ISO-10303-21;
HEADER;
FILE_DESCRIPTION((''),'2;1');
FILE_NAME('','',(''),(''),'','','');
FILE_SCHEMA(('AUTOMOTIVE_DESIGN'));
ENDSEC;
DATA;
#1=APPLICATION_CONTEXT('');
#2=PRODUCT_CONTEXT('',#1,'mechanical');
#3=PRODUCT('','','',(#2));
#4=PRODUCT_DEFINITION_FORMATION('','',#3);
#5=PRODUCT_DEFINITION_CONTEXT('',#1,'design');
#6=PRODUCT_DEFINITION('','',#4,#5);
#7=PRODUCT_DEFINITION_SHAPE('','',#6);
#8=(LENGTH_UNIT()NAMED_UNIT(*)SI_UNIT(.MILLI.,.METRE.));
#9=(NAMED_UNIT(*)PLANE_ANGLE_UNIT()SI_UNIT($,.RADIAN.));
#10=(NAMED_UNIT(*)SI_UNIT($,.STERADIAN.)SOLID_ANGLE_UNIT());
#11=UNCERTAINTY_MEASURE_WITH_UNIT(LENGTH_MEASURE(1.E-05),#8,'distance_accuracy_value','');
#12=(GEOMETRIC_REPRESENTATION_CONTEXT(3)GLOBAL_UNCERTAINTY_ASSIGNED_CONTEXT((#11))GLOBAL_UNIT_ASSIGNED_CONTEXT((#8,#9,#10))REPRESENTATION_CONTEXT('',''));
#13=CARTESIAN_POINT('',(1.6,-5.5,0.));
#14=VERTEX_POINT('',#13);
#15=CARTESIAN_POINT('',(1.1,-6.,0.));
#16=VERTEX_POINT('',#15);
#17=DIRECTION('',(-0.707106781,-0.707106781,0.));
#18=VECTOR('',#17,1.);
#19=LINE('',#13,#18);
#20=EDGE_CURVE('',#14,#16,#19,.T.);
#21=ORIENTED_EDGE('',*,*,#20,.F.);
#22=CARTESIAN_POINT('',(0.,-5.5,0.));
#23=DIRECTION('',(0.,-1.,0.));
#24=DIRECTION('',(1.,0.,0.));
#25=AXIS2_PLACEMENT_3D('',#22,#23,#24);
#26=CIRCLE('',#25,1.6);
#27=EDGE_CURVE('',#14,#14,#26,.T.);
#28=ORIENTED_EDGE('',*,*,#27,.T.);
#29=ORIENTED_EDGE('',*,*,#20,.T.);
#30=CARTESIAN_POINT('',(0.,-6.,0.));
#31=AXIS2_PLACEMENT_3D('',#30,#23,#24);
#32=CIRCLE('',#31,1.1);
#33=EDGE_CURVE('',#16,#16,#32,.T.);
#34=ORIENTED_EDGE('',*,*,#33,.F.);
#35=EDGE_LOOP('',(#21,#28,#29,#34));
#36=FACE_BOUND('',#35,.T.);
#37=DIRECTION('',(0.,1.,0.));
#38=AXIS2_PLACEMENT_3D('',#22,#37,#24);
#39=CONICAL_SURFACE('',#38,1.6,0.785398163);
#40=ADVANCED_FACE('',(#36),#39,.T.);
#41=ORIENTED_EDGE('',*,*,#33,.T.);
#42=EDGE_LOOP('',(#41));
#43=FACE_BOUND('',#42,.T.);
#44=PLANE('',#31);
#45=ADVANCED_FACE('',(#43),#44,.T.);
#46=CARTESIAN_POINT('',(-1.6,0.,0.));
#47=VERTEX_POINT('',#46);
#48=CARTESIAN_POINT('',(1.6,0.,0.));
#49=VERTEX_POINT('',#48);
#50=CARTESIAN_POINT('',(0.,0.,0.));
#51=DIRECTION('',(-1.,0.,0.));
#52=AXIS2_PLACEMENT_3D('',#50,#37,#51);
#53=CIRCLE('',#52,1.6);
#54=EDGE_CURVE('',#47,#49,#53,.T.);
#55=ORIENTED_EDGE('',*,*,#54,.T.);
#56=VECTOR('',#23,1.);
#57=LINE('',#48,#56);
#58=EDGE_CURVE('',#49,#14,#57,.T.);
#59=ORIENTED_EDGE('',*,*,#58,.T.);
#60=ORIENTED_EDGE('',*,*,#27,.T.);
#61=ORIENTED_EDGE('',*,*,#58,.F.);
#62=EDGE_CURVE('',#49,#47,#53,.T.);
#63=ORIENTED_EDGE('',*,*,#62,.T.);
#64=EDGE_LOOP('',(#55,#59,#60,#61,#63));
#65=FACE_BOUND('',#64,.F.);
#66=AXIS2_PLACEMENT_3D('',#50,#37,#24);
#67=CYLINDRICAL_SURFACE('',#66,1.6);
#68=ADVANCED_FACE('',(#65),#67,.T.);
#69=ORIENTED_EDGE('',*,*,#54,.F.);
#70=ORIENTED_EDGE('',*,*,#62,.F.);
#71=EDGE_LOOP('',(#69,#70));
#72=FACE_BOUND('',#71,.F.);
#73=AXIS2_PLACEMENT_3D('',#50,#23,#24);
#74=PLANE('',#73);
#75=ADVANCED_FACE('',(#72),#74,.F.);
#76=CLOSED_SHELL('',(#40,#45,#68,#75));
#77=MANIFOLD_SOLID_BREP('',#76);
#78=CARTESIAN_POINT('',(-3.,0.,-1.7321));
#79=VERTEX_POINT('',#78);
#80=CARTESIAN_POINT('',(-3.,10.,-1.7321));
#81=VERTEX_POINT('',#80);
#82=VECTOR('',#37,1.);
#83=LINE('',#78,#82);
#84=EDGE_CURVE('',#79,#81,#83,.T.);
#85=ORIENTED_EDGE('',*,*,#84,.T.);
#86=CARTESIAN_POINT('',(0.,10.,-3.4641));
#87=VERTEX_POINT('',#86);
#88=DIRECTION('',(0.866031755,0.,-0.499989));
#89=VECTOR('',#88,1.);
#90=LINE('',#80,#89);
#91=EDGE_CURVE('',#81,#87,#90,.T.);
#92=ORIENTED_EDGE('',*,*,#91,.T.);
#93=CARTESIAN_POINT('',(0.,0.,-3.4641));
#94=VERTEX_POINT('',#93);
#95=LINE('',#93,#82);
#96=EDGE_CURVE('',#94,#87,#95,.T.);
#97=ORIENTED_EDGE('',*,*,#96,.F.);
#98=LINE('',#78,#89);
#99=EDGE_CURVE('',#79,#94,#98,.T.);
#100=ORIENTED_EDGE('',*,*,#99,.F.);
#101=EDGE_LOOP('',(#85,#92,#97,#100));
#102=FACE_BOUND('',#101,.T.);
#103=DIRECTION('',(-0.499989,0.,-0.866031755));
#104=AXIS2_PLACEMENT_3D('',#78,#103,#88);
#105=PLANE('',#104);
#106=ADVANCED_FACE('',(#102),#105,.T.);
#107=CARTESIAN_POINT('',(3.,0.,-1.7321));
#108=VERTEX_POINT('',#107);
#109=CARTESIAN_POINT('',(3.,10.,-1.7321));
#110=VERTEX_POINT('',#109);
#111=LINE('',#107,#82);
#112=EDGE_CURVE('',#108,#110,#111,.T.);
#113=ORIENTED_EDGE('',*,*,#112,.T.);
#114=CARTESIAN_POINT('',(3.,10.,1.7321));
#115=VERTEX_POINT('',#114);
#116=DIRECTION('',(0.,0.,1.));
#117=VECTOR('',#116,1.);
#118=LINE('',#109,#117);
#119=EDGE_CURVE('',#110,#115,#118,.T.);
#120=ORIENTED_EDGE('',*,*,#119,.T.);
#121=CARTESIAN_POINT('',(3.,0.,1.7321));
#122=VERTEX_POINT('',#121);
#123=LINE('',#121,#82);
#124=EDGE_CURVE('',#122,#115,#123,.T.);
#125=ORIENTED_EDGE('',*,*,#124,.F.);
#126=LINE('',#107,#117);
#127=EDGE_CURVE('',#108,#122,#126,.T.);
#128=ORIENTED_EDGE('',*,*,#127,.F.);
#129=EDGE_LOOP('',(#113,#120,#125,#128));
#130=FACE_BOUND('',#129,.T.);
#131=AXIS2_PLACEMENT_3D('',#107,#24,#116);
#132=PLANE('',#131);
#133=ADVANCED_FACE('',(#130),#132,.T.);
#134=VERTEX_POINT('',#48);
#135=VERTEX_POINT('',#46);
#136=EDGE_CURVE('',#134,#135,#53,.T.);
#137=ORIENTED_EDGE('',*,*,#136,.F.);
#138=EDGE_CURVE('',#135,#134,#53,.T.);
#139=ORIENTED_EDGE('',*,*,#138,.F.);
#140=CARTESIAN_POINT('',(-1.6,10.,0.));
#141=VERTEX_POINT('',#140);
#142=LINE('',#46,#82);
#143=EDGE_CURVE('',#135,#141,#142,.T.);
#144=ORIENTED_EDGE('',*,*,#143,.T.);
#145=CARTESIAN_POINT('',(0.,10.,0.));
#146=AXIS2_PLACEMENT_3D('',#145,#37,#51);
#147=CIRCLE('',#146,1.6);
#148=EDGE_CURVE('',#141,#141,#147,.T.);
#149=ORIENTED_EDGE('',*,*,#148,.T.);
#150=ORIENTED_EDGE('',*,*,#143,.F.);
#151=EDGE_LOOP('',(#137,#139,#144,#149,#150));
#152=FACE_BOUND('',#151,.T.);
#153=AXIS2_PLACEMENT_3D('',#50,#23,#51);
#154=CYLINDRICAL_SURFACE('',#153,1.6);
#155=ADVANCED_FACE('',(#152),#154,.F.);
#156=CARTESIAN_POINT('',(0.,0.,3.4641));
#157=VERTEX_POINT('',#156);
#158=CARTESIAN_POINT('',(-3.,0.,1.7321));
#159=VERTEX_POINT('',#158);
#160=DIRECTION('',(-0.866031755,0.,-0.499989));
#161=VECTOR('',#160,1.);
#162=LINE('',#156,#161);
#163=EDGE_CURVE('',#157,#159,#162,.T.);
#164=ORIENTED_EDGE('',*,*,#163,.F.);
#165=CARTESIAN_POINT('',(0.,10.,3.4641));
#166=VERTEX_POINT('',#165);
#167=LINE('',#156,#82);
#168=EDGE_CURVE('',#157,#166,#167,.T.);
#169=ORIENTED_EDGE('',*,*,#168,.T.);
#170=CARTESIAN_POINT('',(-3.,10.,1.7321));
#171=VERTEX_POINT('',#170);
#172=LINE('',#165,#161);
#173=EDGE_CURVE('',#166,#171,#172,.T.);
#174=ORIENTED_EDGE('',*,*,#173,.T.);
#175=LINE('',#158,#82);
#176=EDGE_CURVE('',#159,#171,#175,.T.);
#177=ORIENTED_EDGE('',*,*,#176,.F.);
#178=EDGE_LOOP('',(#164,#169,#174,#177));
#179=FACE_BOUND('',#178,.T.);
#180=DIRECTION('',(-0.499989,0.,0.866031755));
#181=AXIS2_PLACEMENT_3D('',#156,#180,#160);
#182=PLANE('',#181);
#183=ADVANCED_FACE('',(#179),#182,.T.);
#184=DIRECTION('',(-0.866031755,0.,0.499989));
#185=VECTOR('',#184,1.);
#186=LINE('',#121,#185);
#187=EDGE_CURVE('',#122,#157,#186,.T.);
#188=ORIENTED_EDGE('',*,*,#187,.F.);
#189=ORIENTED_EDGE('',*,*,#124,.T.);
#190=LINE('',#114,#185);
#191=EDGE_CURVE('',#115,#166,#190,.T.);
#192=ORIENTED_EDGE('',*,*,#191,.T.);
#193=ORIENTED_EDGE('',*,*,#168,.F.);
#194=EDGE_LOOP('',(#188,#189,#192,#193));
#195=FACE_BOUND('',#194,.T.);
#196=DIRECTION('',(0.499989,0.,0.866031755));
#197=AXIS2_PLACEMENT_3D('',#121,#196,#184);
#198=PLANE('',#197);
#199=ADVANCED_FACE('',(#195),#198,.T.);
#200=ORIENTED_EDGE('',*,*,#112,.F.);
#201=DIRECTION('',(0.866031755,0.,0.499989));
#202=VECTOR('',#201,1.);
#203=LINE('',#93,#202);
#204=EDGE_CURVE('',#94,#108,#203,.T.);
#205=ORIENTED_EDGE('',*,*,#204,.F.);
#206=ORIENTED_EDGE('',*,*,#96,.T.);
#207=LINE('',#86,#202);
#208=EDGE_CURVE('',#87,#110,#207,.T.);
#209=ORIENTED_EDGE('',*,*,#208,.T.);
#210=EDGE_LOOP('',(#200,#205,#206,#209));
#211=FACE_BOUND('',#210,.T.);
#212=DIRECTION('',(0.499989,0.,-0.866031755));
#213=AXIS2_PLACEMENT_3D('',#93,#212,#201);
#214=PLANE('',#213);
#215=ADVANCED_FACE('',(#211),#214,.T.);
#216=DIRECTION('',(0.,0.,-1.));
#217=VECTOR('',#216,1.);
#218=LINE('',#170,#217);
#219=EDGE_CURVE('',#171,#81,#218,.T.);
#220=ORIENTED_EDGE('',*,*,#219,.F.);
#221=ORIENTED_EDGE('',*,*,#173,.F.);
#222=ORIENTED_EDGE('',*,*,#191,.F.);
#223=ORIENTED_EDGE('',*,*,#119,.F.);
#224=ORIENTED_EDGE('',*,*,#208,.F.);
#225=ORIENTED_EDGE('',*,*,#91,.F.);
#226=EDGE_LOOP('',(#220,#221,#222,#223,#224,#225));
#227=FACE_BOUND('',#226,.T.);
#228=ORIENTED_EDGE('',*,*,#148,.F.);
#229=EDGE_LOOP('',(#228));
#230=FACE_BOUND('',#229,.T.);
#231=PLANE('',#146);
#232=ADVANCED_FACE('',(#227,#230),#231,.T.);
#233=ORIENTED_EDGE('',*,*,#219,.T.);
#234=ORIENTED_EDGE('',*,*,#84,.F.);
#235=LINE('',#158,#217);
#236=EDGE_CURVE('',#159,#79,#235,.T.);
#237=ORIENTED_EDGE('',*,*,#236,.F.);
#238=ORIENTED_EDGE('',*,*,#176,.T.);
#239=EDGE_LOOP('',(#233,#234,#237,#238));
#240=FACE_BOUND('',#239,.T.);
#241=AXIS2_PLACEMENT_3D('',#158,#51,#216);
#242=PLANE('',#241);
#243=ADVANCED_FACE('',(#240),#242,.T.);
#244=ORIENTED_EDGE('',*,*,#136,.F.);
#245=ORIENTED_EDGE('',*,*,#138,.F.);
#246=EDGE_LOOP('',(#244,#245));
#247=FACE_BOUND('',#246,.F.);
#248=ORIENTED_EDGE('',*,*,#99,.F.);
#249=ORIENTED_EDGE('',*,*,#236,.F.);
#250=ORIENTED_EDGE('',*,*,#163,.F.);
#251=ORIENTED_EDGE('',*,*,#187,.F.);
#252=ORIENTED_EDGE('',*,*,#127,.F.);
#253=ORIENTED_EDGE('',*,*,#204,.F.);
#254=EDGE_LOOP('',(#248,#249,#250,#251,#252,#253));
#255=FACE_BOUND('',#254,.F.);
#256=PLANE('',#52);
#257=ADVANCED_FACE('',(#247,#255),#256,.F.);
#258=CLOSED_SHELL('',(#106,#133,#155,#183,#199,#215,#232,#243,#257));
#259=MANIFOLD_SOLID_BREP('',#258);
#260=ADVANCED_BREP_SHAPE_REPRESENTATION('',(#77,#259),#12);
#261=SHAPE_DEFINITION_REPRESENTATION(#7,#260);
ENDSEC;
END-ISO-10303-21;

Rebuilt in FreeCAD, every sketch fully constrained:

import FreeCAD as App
import Part
import Sketcher
Q = App.Units.Quantity


def edges_at(feature, points):
    """Names of the edges that pass closest to the given points."""
    edges = feature.Shape.Edges
    near = lambda p: min(range(len(edges)), key=lambda i: edges[i].distToShape(Part.Vertex(*p))[0])
    return sorted({f"Edge{near(p) + 1}" for p in points})


def add_polygon(sketch, points):
    """Adds a closed chain of lines whose ends are joined by coincident constraints."""
    first, n = sketch.GeometryCount, len(points)
    for a, b in zip(points, points[1:] + points[:1]):
        sketch.addGeometry(Part.LineSegment(App.Vector(*a, 0), App.Vector(*b, 0)), False)
    for i in range(n):
        sketch.addConstraint(Sketcher.Constraint("Coincident", first + i, 2, first + (i + 1) % n, 1))

doc = App.newDocument("Part")
body = doc.addObject("PartDesign::Body", "Body")
body.AllowCompound = True

sketch1 = body.newObject("Sketcher::SketchObject", "Sketch")
sketch1.AttachmentSupport = (doc.getObject("XZ_Plane"), [""])
sketch1.MapMode = "FlatFace"
add_polygon(sketch1, [(3, -1.7321), (0, -3.4641), (-3, -1.7321), (-3, 1.7321), (0, 3.4641), (3, 1.7321)])
sketch1.addGeometry(Part.Circle(App.Vector(0, 0, 0), App.Vector(0, 0, 1), 1.6), False)
sketch1.addConstraint(Sketcher.Constraint("Vertical", 2))
sketch1.addConstraint(Sketcher.Constraint("Vertical", 5))
sketch1.addConstraint(Sketcher.Constraint("Coincident", 6, 3, -1, 1))
sketch1.addConstraint(Sketcher.Constraint("Symmetric", 0, 2, 3, 2, -1, 1))
sketch1.addConstraint(Sketcher.Constraint("Symmetric", 1, 2, 4, 2, -1, 1))
sketch1.addConstraint(Sketcher.Constraint("PointOnObject", 0, 2, -2))
sketch1.addConstraint(Sketcher.Constraint("Parallel", 0, 3))
sketch1.addConstraint(Sketcher.Constraint("Horizontal", 2, 2, 4, 2))
sketch1.addConstraint(Sketcher.Constraint("Diameter", 6, 3.2))
sketch1.addConstraint(Sketcher.Constraint("DistanceX", 2, 2, 4, 2, 6.0))
sketch1.addConstraint(Sketcher.Constraint("Angle", 0, Q("-150.0007 deg")))
sketch1.addConstraint(Sketcher.Constraint("DistanceY", 2, 1, 2, 2, 3.4642))
pad1 = body.newObject("PartDesign::Pad", "Pad")
pad1.Profile = sketch1
pad1.Length = 10
pad1.Reversed = True

sketch2 = body.newObject("Sketcher::SketchObject", "Sketch001")
sketch2.AttachmentSupport = (doc.getObject("XZ_Plane"), [""])
sketch2.MapMode = "FlatFace"
sketch2.addGeometry(Part.Circle(App.Vector(0, 0, 0), App.Vector(0, 0, 1), 1.6), False)
sketch2.addConstraint(Sketcher.Constraint("Coincident", 0, 3, -1, 1))
sketch2.addConstraint(Sketcher.Constraint("Diameter", 0, 3.2))
pad2 = body.newObject("PartDesign::Pad", "Pad001")
pad2.Profile = sketch2
pad2.Length = 6
doc.recompute()

chamfer = body.newObject("PartDesign::Chamfer", "Chamfer")
chamfer.Base = (pad2, edges_at(pad2, [(-1.6, -6, 0)]))
chamfer.Size = 0.5

doc.recompute()
